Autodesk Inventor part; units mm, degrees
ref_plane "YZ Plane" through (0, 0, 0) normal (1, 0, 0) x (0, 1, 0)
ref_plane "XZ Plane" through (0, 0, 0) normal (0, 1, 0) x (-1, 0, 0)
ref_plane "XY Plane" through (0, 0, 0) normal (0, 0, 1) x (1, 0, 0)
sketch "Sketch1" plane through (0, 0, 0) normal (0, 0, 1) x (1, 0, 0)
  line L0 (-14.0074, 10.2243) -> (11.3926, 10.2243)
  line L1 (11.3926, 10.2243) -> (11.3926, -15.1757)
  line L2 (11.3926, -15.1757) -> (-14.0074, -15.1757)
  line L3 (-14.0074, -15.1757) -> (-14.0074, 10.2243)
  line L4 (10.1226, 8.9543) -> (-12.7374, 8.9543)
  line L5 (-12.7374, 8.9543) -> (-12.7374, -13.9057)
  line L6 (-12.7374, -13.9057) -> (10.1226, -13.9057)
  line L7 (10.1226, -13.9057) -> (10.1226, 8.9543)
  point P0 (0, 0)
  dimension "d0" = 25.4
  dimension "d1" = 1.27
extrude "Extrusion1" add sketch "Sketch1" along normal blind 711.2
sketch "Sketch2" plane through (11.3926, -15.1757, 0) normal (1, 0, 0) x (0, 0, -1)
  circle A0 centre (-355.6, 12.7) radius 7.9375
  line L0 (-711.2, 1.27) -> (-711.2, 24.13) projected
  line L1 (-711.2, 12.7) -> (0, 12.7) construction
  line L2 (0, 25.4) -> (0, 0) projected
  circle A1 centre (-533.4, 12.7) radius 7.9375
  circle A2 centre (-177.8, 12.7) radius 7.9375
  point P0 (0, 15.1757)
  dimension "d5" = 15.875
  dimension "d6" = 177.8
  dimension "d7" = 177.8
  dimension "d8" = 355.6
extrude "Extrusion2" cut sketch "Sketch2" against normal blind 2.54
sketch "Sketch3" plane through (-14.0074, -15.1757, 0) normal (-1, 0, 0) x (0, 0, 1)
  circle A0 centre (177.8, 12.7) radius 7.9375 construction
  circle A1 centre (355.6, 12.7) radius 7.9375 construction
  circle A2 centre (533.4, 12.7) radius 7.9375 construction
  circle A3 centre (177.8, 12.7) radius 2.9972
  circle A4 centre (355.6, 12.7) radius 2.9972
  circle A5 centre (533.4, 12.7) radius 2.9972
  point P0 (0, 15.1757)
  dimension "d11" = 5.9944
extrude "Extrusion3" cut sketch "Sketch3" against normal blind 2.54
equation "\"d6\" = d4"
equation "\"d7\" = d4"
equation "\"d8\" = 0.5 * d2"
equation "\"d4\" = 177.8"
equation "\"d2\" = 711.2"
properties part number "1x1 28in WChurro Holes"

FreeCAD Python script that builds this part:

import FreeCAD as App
import Part
import Sketcher

V = App.Vector
Q = App.Units.Quantity


def add_polygon(sketch, points):
    """Adds a closed chain of lines whose ends are joined by coincident constraints."""
    first, n = sketch.GeometryCount, len(points)
    for a, b in zip(points, points[1:] + points[:1]):
        sketch.addGeometry(Part.LineSegment(App.Vector(*a, 0), App.Vector(*b, 0)), False)
    for i in range(n):
        sketch.addConstraint(Sketcher.Constraint("Coincident", first + i, 2, first + (i + 1) % n, 1))

doc = App.newDocument("Part")
body = doc.addObject("PartDesign::Body", "Body")

# Sketch on XY plane
sketch1 = doc.addObject("Sketcher::SketchObject", "Sketch")
body.addObject(sketch1)
sketch1.AttachmentSupport = (doc.XY_Plane, [""])
sketch1.MapMode = "FlatFace"
add_polygon(sketch1, [(11, 10), (-14, 10), (-14, -15), (11, -15)])  # lines 0-3
add_polygon(sketch1, [(-13, 9), (10, 9), (10, -14), (-13, -14)])  # lines 4-7
sketch1.addConstraint(Sketcher.Constraint("Horizontal", 0))
sketch1.addConstraint(Sketcher.Constraint("Vertical", 1))
sketch1.addConstraint(Sketcher.Constraint("Horizontal", 2))
sketch1.addConstraint(Sketcher.Constraint("Vertical", 3))
sketch1.addConstraint(Sketcher.Constraint("Horizontal", 4))
sketch1.addConstraint(Sketcher.Constraint("Vertical", 5))
sketch1.addConstraint(Sketcher.Constraint("Horizontal", 6))
sketch1.addConstraint(Sketcher.Constraint("Vertical", 7))
sketch1.addConstraint(Sketcher.Constraint("Equal", 2, 1))
sketch1.addConstraint(Sketcher.Constraint("Equal", 6, 5))
sketch1.addConstraint(Sketcher.Constraint("DistanceX", 0, 2, 0, 1, Q("1 in")))
sketch1.addConstraint(Sketcher.Constraint("DistanceX", 4, 2, 3, 2, Q("0.05 in")))
sketch1.addConstraint(Sketcher.Constraint("DistanceY", 4, 2, 3, 2, Q("0.05 in")))
sketch1.addConstraint(Sketcher.Constraint("DistanceY", 2, 2, 5, 2, Q("0.05 in")))
sketch1.addConstraint(Sketcher.Constraint("DistanceX", 0, 2, -1, 1, Q("14.0074 mm")))
sketch1.addConstraint(Sketcher.Constraint("DistanceY", -1, 1, 0, 2, Q("10.2243 mm")))
pad1 = doc.addObject("PartDesign::Pad", "Pad")
body.addObject(pad1)
pad1.Profile = sketch1
pad1.Length = Q("28 in")

# Sketch on YZ plane
sketch2 = doc.addObject("Sketcher::SketchObject", "Sketch001")
body.addObject(sketch2)
sketch2.AttachmentSupport = (doc.YZ_Plane, [""])
sketch2.MapMode = "FlatFace"
sketch2.AttachmentOffset = App.Placement(V(0, 0, 11.3926), App.Rotation())
sketch2.addGeometry(Part.Circle(V(-2, 356, 0), V(0, 0, 1), 8), False)
sketch2.addGeometry(Part.Circle(V(-2, 533, 0), V(0, 0, 1), 8), False)
sketch2.addGeometry(Part.Circle(V(-2, 178, 0), V(0, 0, 1), 8), False)
sketch2.addConstraint(Sketcher.Constraint("Equal", 0, 1))
sketch2.addConstraint(Sketcher.Constraint("Equal", 1, 2))
sketch2.addConstraint(Sketcher.Constraint("Vertical", 0, 3, 1, 3))
sketch2.addConstraint(Sketcher.Constraint("Vertical", 1, 3, 2, 3))
sketch2.addConstraint(Sketcher.Constraint("Diameter", 0, Q("0.625 in")))
sketch2.addConstraint(Sketcher.Constraint("DistanceY", -1, 1, 0, 3, Q("14 in")))
sketch2.addConstraint(Sketcher.Constraint("DistanceY", -1, 1, 2, 3, Q("7 in")))
sketch2.addConstraint(Sketcher.Constraint("DistanceY", 0, 3, 1, 3, Q("7 in")))
sketch2.addConstraint(Sketcher.Constraint("DistanceX", 0, 3, -1, 1, Q("2.4757 mm")))
pocket1 = doc.addObject("PartDesign::Pocket", "Pocket")
body.addObject(pocket1)
pocket1.Profile = sketch2
pocket1.Length = Q("0.1 in")

# Sketch on YZ plane
sketch3 = doc.addObject("Sketcher::SketchObject", "Sketch002")
body.addObject(sketch3)
sketch3.AttachmentSupport = (doc.YZ_Plane, [""])
sketch3.MapMode = "FlatFace"
sketch3.AttachmentOffset = App.Placement(V(0, 0, -14.0074), App.Rotation())
sketch3.addGeometry(Part.Circle(V(-2.5, 177.8, 0), V(0, 0, 1), 3), False)
sketch3.addGeometry(Part.Circle(V(-2.5, 355.6, 0), V(0, 0, 1), 3), False)
sketch3.addGeometry(Part.Circle(V(-2.5, 533.4, 0), V(0, 0, 1), 3), False)
sketch3.addConstraint(Sketcher.Constraint("Equal", 0, 1))
sketch3.addConstraint(Sketcher.Constraint("Equal", 1, 2))
sketch3.addConstraint(Sketcher.Constraint("Vertical", 0, 3, 1, 3))
sketch3.addConstraint(Sketcher.Constraint("Vertical", 1, 3, 2, 3))
sketch3.addConstraint(Sketcher.Constraint("Diameter", 0, Q("0.236 in")))
sketch3.addConstraint(Sketcher.Constraint("DistanceY", -1, 1, 0, 3, Q("7 in")))
sketch3.addConstraint(Sketcher.Constraint("DistanceY", -1, 1, 1, 3, Q("14 in")))
sketch3.addConstraint(Sketcher.Constraint("DistanceY", -1, 1, 2, 3, Q("21 in")))
sketch3.addConstraint(Sketcher.Constraint("DistanceX", 0, 3, -1, 1, Q("2.4757 mm")))
pocket2 = doc.addObject("PartDesign::Pocket", "Pocket001")
body.addObject(pocket2)
pocket2.Profile = sketch3
pocket2.Length = Q("0.1 in")
pocket2.Reversed = True

doc.recompute()
